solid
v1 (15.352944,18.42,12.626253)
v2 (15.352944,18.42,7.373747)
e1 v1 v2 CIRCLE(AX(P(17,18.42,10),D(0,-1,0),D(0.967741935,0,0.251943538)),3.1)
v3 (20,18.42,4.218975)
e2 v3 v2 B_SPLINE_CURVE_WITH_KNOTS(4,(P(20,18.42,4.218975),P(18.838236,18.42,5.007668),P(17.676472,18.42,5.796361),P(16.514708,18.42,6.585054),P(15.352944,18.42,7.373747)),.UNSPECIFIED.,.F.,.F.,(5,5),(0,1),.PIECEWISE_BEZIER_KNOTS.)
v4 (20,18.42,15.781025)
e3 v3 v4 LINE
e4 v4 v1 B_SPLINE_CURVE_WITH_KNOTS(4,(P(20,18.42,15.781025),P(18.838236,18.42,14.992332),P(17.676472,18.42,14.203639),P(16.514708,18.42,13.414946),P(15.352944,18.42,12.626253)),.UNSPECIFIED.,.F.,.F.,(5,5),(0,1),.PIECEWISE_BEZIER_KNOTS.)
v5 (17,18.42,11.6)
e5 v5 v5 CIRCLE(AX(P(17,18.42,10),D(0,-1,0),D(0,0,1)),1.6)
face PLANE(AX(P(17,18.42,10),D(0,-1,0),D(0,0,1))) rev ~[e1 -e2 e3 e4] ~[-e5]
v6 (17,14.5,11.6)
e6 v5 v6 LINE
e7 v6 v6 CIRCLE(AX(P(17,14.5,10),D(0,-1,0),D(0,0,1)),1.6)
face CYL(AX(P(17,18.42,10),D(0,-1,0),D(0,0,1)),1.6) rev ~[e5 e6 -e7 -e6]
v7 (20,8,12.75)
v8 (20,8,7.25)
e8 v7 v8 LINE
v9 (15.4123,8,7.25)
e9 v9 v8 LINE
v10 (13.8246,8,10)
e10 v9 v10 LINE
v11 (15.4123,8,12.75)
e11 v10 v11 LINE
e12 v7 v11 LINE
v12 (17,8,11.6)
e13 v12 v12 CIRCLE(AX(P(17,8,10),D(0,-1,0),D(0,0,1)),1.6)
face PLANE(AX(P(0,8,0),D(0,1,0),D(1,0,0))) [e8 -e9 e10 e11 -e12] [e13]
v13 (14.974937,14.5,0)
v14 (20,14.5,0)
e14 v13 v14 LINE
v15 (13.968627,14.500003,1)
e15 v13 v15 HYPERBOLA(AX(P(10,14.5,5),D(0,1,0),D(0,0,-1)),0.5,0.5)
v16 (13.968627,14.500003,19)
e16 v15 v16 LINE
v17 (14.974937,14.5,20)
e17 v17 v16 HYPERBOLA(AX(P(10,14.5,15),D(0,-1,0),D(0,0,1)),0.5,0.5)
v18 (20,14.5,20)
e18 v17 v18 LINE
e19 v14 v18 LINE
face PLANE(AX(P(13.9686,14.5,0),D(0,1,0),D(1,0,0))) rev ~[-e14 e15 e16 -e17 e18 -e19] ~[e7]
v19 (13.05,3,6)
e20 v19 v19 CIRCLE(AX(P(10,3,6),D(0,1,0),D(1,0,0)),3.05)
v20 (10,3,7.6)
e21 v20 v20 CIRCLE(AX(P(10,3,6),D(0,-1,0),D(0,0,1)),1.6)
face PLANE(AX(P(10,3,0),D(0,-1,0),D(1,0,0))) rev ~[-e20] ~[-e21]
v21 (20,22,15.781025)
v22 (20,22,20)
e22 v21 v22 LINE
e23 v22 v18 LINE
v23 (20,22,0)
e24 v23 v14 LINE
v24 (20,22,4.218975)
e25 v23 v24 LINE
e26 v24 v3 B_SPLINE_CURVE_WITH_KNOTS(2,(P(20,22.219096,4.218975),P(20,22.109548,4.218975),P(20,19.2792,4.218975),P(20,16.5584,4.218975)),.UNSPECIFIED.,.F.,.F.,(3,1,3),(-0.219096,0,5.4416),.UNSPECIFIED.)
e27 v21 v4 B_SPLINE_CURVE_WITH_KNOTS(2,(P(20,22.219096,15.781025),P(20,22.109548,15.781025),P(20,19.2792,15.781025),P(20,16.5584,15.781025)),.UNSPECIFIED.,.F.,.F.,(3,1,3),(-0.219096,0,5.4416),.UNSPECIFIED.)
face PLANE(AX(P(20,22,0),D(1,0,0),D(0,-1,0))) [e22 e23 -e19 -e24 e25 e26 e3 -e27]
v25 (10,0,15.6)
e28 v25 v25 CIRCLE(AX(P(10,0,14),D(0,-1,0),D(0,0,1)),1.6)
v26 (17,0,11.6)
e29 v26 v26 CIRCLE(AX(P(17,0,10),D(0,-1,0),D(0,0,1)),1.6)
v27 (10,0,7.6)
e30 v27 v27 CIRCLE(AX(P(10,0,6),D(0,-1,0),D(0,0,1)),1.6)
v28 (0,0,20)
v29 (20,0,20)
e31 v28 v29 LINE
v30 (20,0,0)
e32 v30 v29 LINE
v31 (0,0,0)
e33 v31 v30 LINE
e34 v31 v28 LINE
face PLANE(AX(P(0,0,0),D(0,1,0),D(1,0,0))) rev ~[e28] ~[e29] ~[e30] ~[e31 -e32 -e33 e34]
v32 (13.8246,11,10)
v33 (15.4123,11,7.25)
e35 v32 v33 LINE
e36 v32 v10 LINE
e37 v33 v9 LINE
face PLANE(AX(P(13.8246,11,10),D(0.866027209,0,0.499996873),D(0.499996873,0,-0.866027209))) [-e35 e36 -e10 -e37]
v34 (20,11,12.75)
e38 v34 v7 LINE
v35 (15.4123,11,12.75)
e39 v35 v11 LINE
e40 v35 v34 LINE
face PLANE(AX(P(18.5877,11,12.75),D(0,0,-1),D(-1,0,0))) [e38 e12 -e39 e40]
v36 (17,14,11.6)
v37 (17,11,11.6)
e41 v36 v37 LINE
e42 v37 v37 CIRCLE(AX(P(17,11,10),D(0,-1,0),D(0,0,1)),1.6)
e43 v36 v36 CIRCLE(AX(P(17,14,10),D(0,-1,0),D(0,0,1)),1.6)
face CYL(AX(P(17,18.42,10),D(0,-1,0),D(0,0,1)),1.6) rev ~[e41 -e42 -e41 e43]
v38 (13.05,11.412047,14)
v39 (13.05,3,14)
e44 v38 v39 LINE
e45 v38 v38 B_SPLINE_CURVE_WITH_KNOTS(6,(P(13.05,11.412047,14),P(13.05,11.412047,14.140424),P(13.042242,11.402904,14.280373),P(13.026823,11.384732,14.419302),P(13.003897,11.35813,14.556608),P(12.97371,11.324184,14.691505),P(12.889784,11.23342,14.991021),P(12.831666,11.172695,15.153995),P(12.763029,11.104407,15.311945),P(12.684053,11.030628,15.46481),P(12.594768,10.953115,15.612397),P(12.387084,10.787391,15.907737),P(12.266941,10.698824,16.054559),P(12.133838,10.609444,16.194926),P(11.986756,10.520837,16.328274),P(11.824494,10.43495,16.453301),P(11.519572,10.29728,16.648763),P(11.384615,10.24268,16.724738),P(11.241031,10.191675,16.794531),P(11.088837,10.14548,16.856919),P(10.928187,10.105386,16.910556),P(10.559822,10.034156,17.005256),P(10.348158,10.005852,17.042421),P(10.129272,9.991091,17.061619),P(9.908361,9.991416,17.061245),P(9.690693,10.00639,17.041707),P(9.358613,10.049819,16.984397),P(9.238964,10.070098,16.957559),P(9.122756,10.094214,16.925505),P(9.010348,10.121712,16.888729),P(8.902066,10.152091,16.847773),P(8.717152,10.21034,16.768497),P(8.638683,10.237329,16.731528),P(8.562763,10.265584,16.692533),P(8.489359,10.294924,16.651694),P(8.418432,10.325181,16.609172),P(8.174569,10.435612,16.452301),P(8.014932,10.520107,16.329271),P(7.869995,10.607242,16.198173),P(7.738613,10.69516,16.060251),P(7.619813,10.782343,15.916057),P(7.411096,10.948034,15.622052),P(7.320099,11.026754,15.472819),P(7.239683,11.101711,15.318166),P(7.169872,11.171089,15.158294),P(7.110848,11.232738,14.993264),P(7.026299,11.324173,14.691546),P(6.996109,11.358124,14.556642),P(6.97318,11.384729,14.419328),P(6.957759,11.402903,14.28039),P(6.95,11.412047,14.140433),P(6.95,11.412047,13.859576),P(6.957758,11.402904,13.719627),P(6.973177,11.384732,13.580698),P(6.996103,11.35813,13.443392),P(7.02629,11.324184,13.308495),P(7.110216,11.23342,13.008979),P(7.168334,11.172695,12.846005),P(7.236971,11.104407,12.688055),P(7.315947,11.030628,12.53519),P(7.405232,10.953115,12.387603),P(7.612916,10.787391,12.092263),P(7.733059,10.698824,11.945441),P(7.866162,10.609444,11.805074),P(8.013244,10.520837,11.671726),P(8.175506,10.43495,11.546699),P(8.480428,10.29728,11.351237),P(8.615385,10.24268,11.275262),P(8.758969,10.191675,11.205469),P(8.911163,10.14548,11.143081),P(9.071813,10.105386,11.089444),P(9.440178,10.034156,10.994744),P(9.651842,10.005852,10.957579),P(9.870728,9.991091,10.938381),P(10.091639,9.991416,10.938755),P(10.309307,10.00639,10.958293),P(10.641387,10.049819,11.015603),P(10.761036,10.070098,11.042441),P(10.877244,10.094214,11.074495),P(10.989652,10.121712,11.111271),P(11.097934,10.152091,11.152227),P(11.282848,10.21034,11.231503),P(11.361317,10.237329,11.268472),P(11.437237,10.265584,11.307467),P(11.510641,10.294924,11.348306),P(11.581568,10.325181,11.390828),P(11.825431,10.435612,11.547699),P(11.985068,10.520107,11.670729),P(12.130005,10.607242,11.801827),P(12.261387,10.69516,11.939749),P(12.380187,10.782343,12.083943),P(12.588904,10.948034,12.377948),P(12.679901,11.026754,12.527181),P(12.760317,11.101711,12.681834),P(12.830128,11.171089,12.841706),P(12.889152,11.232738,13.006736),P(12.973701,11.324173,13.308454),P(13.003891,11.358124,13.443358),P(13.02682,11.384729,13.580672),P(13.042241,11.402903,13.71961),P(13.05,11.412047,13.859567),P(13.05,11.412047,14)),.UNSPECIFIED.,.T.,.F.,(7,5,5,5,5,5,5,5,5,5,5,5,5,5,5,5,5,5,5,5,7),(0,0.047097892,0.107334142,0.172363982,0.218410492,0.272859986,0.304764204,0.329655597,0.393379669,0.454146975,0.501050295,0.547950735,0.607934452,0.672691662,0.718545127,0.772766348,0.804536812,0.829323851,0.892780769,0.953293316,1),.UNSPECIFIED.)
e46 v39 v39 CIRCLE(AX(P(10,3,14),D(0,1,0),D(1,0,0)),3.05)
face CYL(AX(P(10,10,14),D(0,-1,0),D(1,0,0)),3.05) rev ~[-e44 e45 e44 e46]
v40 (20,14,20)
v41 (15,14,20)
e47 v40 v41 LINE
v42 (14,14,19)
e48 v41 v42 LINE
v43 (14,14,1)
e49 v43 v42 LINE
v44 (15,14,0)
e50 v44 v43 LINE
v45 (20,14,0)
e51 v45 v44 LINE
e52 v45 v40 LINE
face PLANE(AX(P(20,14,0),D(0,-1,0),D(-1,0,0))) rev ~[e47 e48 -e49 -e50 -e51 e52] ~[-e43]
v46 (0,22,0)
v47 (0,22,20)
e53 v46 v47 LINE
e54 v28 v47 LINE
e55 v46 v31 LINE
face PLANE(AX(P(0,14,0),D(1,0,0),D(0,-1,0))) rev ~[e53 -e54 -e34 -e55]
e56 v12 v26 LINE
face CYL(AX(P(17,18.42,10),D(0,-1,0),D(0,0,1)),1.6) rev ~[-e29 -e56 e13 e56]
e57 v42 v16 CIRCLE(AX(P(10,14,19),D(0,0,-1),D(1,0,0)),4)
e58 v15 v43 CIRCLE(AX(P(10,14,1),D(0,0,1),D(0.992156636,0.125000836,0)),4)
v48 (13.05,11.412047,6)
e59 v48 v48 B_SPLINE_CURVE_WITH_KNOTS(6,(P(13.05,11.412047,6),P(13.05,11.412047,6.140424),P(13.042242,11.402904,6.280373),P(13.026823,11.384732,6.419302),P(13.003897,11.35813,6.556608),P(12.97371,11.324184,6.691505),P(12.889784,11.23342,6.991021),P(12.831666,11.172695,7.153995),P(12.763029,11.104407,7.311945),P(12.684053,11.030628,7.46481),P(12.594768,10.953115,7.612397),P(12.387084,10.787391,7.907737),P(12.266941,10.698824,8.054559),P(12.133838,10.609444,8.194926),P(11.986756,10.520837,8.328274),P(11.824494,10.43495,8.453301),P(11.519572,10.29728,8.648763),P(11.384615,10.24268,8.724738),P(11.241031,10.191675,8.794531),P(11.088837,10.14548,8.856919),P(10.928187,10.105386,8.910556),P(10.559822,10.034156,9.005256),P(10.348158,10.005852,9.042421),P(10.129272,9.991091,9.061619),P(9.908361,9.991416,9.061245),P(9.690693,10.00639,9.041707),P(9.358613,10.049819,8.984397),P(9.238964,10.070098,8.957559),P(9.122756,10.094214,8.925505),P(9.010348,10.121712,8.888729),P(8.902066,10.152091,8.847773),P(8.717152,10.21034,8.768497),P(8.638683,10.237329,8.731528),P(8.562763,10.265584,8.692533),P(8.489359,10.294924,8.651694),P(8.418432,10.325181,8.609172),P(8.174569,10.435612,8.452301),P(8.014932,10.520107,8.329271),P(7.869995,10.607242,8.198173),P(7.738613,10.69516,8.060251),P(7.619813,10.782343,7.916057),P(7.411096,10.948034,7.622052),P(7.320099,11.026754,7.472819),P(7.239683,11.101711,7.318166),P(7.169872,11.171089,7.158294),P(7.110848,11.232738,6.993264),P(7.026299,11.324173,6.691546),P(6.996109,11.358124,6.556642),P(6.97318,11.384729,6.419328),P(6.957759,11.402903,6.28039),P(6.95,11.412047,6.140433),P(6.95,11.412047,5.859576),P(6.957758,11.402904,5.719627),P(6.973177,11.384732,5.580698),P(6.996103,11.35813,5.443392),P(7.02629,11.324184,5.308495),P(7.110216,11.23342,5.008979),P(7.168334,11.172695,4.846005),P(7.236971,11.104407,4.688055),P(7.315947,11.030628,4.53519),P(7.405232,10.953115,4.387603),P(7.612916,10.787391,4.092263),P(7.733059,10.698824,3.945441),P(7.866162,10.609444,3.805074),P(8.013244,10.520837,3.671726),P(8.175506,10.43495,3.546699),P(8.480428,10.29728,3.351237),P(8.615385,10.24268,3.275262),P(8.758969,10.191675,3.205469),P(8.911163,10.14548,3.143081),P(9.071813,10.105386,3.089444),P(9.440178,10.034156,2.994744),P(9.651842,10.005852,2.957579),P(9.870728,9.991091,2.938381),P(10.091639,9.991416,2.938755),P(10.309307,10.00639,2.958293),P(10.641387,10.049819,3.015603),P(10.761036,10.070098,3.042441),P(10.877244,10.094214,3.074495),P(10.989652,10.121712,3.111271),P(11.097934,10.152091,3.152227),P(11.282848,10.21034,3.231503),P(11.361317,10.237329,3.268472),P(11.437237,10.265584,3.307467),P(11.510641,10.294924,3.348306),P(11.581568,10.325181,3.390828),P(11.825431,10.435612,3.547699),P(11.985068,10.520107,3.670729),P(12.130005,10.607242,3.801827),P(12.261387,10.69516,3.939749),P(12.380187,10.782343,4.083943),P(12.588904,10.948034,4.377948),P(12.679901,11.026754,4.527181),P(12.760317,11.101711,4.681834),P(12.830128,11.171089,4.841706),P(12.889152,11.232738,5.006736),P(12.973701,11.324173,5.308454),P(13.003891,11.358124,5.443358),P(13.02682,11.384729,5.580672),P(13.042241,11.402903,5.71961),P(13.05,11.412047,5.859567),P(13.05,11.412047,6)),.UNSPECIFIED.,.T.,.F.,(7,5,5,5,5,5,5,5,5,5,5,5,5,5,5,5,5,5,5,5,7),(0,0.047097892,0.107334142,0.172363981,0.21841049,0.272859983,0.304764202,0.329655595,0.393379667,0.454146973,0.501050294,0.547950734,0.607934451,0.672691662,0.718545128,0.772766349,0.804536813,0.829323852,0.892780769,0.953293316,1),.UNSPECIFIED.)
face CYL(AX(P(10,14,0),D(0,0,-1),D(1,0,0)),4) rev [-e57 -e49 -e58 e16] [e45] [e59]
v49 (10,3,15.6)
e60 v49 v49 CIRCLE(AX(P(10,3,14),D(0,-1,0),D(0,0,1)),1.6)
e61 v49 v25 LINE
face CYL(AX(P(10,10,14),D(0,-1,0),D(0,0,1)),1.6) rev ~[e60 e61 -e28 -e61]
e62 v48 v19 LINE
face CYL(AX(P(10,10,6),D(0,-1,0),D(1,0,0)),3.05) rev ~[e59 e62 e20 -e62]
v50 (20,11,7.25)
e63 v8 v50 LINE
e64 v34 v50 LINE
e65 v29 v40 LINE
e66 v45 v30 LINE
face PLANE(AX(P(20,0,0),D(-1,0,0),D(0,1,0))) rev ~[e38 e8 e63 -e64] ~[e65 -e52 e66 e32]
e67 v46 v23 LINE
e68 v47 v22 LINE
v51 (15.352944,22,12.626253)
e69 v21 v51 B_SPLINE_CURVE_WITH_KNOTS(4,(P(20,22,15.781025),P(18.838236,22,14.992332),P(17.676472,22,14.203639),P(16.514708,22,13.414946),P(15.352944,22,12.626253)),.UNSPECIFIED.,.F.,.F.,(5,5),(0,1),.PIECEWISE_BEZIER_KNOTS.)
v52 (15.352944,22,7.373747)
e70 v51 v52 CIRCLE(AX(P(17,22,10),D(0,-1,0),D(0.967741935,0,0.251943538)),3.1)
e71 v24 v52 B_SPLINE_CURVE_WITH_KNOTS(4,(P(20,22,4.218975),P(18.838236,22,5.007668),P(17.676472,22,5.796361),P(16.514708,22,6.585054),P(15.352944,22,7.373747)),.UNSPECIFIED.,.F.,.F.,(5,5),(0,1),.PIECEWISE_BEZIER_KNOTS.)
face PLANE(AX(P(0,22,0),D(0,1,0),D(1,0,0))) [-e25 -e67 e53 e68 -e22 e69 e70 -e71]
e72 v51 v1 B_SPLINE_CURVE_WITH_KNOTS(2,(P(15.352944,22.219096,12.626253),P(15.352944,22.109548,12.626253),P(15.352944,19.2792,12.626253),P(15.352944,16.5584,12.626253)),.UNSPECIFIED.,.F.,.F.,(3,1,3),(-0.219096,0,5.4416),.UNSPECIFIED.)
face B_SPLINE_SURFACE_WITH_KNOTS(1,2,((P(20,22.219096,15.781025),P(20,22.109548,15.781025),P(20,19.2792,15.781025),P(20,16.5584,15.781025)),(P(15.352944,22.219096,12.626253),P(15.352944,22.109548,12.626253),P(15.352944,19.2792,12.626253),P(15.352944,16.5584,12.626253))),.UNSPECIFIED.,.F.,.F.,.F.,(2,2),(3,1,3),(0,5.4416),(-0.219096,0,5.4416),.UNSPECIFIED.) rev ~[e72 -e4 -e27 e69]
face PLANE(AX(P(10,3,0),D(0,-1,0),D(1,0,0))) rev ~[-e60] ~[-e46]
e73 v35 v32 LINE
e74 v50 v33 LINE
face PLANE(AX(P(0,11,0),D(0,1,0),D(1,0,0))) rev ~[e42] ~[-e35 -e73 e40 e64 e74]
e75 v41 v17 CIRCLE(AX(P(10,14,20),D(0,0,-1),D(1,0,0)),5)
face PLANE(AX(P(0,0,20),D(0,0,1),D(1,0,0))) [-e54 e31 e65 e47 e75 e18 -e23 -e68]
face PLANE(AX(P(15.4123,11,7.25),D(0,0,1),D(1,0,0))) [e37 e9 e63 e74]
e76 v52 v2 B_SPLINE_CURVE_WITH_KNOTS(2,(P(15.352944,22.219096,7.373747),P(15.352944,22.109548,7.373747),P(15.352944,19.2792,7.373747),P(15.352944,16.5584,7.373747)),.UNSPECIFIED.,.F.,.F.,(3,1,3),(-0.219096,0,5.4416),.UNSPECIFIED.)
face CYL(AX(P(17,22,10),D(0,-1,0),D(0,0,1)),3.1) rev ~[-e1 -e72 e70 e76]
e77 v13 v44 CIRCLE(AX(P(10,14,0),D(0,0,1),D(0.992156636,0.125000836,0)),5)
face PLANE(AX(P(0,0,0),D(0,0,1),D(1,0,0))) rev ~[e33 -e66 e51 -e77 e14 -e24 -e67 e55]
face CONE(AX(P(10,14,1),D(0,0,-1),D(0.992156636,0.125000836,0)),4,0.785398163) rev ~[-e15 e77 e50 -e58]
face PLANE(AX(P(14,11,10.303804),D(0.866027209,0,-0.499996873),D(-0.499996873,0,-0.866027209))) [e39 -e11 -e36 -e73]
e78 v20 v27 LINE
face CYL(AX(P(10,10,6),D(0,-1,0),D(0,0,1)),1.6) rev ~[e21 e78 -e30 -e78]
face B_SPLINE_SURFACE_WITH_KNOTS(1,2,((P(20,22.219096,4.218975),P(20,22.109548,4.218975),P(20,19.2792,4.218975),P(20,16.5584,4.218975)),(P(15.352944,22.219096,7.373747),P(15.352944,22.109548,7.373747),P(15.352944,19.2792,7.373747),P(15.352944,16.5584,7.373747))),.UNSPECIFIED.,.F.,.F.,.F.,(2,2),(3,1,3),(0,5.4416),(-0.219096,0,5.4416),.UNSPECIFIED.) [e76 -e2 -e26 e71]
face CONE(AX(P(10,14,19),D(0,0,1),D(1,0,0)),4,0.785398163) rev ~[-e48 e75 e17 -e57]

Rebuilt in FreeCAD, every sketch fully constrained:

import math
import FreeCAD as App
import Part
import Sketcher
from FreeCAD import Vector
Q = App.Units.Quantity


def edges_at(feature, points):
    """Names of the edges that pass closest to the given points."""
    edges = feature.Shape.Edges
    near = lambda p: min(range(len(edges)), key=lambda i: edges[i].distToShape(Part.Vertex(*p))[0])
    return sorted({f"Edge{near(p) + 1}" for p in points})


def add_polygon(sketch, points):
    """Adds a closed chain of lines whose ends are joined by coincident constraints."""
    first, n = sketch.GeometryCount, len(points)
    for a, b in zip(points, points[1:] + points[:1]):
        sketch.addGeometry(Part.LineSegment(App.Vector(*a, 0), App.Vector(*b, 0)), False)
    for i in range(n):
        sketch.addConstraint(Sketcher.Constraint("Coincident", first + i, 2, first + (i + 1) % n, 1))

doc = App.newDocument("Part")
body = doc.addObject("PartDesign::Body", "Body")

sketch1 = doc.addObject("Sketcher::SketchObject", "Sketch")
body.addObject(sketch1)
sketch1.AttachmentSupport = (doc.XY_Plane, [""])
sketch1.MapMode = "FlatFace"
sketch1.addGeometry(Part.LineSegment(Vector(0, 0, 0), Vector(20, 0, 0)), False)
sketch1.addGeometry(Part.LineSegment(Vector(20, 0, 0), Vector(20, 14, 0)), False)
sketch1.addGeometry(Part.LineSegment(Vector(20, 14, 0), Vector(14, 14, 0)), False)
sketch1.addGeometry(Part.ArcOfCircle(Part.Circle(Vector(10, 14, 0), Vector(0, 0, 1), 4), math.radians(7.180804), math.radians(360)), False)
sketch1.addGeometry(Part.LineSegment(Vector(13.9686, 14.5, 0), Vector(20, 14.5, 0)), False)
sketch1.addGeometry(Part.LineSegment(Vector(20, 14.5, 0), Vector(20, 22, 0)), False)
sketch1.addGeometry(Part.LineSegment(Vector(20, 22, 0), Vector(0, 22, 0)), False)
sketch1.addGeometry(Part.LineSegment(Vector(0, 22, 0), Vector(0, 0, 0)), False)
sketch1.addConstraint(Sketcher.Constraint("Coincident", 0, 2, 1, 1))
sketch1.addConstraint(Sketcher.Constraint("Coincident", 1, 2, 2, 1))
sketch1.addConstraint(Sketcher.Constraint("Coincident", 2, 2, 3, 2))
sketch1.addConstraint(Sketcher.Constraint("Coincident", 3, 1, 4, 1))
sketch1.addConstraint(Sketcher.Constraint("Coincident", 4, 2, 5, 1))
sketch1.addConstraint(Sketcher.Constraint("Coincident", 5, 2, 6, 1))
sketch1.addConstraint(Sketcher.Constraint("Coincident", 6, 2, 7, 1))
sketch1.addConstraint(Sketcher.Constraint("Coincident", 7, 2, 0, 1))
sketch1.addConstraint(Sketcher.Constraint("Horizontal", 0))
sketch1.addConstraint(Sketcher.Constraint("Vertical", 1))
sketch1.addConstraint(Sketcher.Constraint("Horizontal", 2))
sketch1.addConstraint(Sketcher.Constraint("Horizontal", 4))
sketch1.addConstraint(Sketcher.Constraint("Vertical", 5))
sketch1.addConstraint(Sketcher.Constraint("Horizontal", 6))
sketch1.addConstraint(Sketcher.Constraint("Vertical", 7))
sketch1.addConstraint(Sketcher.Constraint("Coincident", 7, 2, -1, 1))
sketch1.addConstraint(Sketcher.Constraint("Horizontal", 3, 3, 1, 2))
sketch1.addConstraint(Sketcher.Constraint("Vertical", 1, 2, 4, 2))
sketch1.addConstraint(Sketcher.Constraint("Radius", 3, Q("4 mm")))
sketch1.addConstraint(Sketcher.Constraint("DistanceX", 0, 1, 0, 2, Q("20 mm")))
sketch1.addConstraint(Sketcher.Constraint("DistanceX", -1, 1, 3, 3, Q("10 mm")))
sketch1.addConstraint(Sketcher.Constraint("DistanceY", 1, 2, 5, 2, Q("8 mm")))
sketch1.addConstraint(Sketcher.Constraint("DistanceY", 1, 1, 1, 2, Q("14 mm")))
sketch1.addConstraint(Sketcher.Constraint("DistanceY", 5, 1, 5, 2, Q("7.5 mm")))
pad1 = doc.addObject("PartDesign::Pad", "Pad")
body.addObject(pad1)
pad1.Profile = sketch1
pad1.Length = 20
doc.recompute()

chamfer = doc.addObject("PartDesign::Chamfer", "Chamfer")
body.addObject(chamfer)
chamfer.Base = (pad1, edges_at(pad1, [(6.008, 13.749, 0), (6.008, 13.749, 20)]))
chamfer.Size = 1

sketch2 = doc.addObject("Sketcher::SketchObject", "Sketch001")
body.addObject(sketch2)
sketch2.AttachmentSupport = (doc.XZ_Plane, [""])
sketch2.MapMode = "FlatFace"
sketch2.AttachmentOffset = App.Placement(Vector(0, 0, -11), App.Rotation())
add_polygon(sketch2, [(13.8246, 10), (15.4123, 12.75), (22.4339, 12.75), (22.4339, 7.25), (15.4123, 7.25)])
sketch2.addConstraint(Sketcher.Constraint("Horizontal", 1))
sketch2.addConstraint(Sketcher.Constraint("Vertical", 2))
sketch2.addConstraint(Sketcher.Constraint("Horizontal", 3))
sketch2.addConstraint(Sketcher.Constraint("Vertical", 0, 2, 3, 2))
sketch2.addConstraint(Sketcher.Constraint("Equal", 0, 4))
sketch2.addConstraint(Sketcher.Constraint("DistanceY", 2, 2, 2, 1, Q("5.5 mm")))
sketch2.addConstraint(Sketcher.Constraint("Angle", 0, Q("60.0002 deg")))
sketch2.addConstraint(Sketcher.Constraint("DistanceY", -1, 1, 4, 2, Q("10 mm")))
sketch2.addConstraint(Sketcher.Constraint("DistanceX", 1, 1, 1, 2, Q("7.0216 mm")))
sketch2.addConstraint(Sketcher.Constraint("DistanceX", -1, 1, 1, 2, Q("22.434 mm")))
pocket1 = doc.addObject("PartDesign::Pocket", "Pocket")
body.addObject(pocket1)
pocket1.Profile = sketch2
pocket1.Length = 3
pocket1.Reversed = True

sketch3 = doc.addObject("Sketcher::SketchObject", "Sketch002")
body.addObject(sketch3)
sketch3.AttachmentSupport = (doc.XZ_Plane, [""])
sketch3.MapMode = "FlatFace"
sketch3.AttachmentOffset = App.Placement(Vector(0, 0, -22), App.Rotation())
sketch3.addGeometry(Part.Circle(Vector(17, 10, 0), Vector(0, 0, 1), 1.6), False)
sketch3.addConstraint(Sketcher.Constraint("Diameter", 0, Q("3.2 mm")))
sketch3.addConstraint(Sketcher.Constraint("DistanceX", -1, 1, 0, 3, Q("17 mm")))
sketch3.addConstraint(Sketcher.Constraint("DistanceY", -1, 1, 0, 3, Q("10 mm")))
doc.recompute()
hole = doc.addObject("PartDesign::Hole", "Hole")
body.addObject(hole)
hole.Profile = sketch3
hole.ThreadType = "None"
hole.Diameter = 3.2
hole.DepthType = "ThroughAll"
hole.HoleCutType = "Counterbore"
hole.HoleCutDiameter = 6.2
hole.HoleCutDepth = 3.58
hole.Reversed = True
doc.recompute()

chamfer2 = doc.addObject("PartDesign::Chamfer", "Chamfer001")
body.addObject(chamfer2)
chamfer2.Base = (hole, edges_at(hole, [(20, 20.21, 9.219), (20, 20.21, 10.781)]))
chamfer2.Size = 5

sketch4 = doc.addObject("Sketcher::SketchObject", "Sketch003")
body.addObject(sketch4)
sketch4.AttachmentSupport = (doc.XZ_Plane, [""])
sketch4.MapMode = "FlatFace"
sketch4.AttachmentOffset = App.Placement(Vector(0, 0, -10), App.Rotation())
sketch4.addGeometry(Part.Circle(Vector(10, 14, 0), Vector(0, 0, 1), 3.05), False)
sketch4.addGeometry(Part.Circle(Vector(10, 6, 0), Vector(0, 0, 1), 3.05), False)
sketch4.addConstraint(Sketcher.Constraint("Equal", 0, 1))
sketch4.addConstraint(Sketcher.Constraint("Vertical", 0, 3, 1, 3))
sketch4.addConstraint(Sketcher.Constraint("Diameter", 0, Q("6.1 mm")))
sketch4.addConstraint(Sketcher.Constraint("DistanceY", -1, 1, 1, 3, Q("6 mm")))
sketch4.addConstraint(Sketcher.Constraint("DistanceX", -1, 1, 0, 3, Q("10 mm")))
sketch4.addConstraint(Sketcher.Constraint("DistanceY", -1, 1, 0, 3, Q("14 mm")))
pocket2 = doc.addObject("PartDesign::Pocket", "Pocket001")
body.addObject(pocket2)
pocket2.Profile = sketch4
pocket2.Type = "TwoLengths"
pocket2.Length = 7
pocket2.Length2 = 2
pocket2.Reversed = True

sketch5 = doc.addObject("Sketcher::SketchObject", "Sketch004")
body.addObject(sketch5)
sketch5.AttachmentSupport = (doc.XZ_Plane, [""])
sketch5.MapMode = "FlatFace"
sketch5.AttachmentOffset = App.Placement(Vector(0, 0, -10), App.Rotation())
sketch5.addGeometry(Part.Circle(Vector(10, 6, 0), Vector(0, 0, 1), 1.6), False)
sketch5.addGeometry(Part.Circle(Vector(10, 14, 0), Vector(0, 0, 1), 1.6), False)
sketch5.addConstraint(Sketcher.Constraint("Equal", 0, 1))
sketch5.addConstraint(Sketcher.Constraint("Vertical", 0, 3, 1, 3))
sketch5.addConstraint(Sketcher.Constraint("Diameter", 0, Q("3.2 mm")))
sketch5.addConstraint(Sketcher.Constraint("DistanceX", -1, 1, 0, 3, Q("10 mm")))
sketch5.addConstraint(Sketcher.Constraint("DistanceY", -1, 1, 0, 3, Q("6 mm")))
sketch5.addConstraint(Sketcher.Constraint("DistanceY", -1, 1, 1, 3, Q("14 mm")))
doc.recompute()
hole2 = doc.addObject("PartDesign::Hole", "Hole001")
body.addObject(hole2)
hole2.Profile = sketch5
hole2.ThreadType = "None"
hole2.Diameter = 3.2
hole2.DepthType = "ThroughAll"
hole2.Reversed = True

doc.recompute()
